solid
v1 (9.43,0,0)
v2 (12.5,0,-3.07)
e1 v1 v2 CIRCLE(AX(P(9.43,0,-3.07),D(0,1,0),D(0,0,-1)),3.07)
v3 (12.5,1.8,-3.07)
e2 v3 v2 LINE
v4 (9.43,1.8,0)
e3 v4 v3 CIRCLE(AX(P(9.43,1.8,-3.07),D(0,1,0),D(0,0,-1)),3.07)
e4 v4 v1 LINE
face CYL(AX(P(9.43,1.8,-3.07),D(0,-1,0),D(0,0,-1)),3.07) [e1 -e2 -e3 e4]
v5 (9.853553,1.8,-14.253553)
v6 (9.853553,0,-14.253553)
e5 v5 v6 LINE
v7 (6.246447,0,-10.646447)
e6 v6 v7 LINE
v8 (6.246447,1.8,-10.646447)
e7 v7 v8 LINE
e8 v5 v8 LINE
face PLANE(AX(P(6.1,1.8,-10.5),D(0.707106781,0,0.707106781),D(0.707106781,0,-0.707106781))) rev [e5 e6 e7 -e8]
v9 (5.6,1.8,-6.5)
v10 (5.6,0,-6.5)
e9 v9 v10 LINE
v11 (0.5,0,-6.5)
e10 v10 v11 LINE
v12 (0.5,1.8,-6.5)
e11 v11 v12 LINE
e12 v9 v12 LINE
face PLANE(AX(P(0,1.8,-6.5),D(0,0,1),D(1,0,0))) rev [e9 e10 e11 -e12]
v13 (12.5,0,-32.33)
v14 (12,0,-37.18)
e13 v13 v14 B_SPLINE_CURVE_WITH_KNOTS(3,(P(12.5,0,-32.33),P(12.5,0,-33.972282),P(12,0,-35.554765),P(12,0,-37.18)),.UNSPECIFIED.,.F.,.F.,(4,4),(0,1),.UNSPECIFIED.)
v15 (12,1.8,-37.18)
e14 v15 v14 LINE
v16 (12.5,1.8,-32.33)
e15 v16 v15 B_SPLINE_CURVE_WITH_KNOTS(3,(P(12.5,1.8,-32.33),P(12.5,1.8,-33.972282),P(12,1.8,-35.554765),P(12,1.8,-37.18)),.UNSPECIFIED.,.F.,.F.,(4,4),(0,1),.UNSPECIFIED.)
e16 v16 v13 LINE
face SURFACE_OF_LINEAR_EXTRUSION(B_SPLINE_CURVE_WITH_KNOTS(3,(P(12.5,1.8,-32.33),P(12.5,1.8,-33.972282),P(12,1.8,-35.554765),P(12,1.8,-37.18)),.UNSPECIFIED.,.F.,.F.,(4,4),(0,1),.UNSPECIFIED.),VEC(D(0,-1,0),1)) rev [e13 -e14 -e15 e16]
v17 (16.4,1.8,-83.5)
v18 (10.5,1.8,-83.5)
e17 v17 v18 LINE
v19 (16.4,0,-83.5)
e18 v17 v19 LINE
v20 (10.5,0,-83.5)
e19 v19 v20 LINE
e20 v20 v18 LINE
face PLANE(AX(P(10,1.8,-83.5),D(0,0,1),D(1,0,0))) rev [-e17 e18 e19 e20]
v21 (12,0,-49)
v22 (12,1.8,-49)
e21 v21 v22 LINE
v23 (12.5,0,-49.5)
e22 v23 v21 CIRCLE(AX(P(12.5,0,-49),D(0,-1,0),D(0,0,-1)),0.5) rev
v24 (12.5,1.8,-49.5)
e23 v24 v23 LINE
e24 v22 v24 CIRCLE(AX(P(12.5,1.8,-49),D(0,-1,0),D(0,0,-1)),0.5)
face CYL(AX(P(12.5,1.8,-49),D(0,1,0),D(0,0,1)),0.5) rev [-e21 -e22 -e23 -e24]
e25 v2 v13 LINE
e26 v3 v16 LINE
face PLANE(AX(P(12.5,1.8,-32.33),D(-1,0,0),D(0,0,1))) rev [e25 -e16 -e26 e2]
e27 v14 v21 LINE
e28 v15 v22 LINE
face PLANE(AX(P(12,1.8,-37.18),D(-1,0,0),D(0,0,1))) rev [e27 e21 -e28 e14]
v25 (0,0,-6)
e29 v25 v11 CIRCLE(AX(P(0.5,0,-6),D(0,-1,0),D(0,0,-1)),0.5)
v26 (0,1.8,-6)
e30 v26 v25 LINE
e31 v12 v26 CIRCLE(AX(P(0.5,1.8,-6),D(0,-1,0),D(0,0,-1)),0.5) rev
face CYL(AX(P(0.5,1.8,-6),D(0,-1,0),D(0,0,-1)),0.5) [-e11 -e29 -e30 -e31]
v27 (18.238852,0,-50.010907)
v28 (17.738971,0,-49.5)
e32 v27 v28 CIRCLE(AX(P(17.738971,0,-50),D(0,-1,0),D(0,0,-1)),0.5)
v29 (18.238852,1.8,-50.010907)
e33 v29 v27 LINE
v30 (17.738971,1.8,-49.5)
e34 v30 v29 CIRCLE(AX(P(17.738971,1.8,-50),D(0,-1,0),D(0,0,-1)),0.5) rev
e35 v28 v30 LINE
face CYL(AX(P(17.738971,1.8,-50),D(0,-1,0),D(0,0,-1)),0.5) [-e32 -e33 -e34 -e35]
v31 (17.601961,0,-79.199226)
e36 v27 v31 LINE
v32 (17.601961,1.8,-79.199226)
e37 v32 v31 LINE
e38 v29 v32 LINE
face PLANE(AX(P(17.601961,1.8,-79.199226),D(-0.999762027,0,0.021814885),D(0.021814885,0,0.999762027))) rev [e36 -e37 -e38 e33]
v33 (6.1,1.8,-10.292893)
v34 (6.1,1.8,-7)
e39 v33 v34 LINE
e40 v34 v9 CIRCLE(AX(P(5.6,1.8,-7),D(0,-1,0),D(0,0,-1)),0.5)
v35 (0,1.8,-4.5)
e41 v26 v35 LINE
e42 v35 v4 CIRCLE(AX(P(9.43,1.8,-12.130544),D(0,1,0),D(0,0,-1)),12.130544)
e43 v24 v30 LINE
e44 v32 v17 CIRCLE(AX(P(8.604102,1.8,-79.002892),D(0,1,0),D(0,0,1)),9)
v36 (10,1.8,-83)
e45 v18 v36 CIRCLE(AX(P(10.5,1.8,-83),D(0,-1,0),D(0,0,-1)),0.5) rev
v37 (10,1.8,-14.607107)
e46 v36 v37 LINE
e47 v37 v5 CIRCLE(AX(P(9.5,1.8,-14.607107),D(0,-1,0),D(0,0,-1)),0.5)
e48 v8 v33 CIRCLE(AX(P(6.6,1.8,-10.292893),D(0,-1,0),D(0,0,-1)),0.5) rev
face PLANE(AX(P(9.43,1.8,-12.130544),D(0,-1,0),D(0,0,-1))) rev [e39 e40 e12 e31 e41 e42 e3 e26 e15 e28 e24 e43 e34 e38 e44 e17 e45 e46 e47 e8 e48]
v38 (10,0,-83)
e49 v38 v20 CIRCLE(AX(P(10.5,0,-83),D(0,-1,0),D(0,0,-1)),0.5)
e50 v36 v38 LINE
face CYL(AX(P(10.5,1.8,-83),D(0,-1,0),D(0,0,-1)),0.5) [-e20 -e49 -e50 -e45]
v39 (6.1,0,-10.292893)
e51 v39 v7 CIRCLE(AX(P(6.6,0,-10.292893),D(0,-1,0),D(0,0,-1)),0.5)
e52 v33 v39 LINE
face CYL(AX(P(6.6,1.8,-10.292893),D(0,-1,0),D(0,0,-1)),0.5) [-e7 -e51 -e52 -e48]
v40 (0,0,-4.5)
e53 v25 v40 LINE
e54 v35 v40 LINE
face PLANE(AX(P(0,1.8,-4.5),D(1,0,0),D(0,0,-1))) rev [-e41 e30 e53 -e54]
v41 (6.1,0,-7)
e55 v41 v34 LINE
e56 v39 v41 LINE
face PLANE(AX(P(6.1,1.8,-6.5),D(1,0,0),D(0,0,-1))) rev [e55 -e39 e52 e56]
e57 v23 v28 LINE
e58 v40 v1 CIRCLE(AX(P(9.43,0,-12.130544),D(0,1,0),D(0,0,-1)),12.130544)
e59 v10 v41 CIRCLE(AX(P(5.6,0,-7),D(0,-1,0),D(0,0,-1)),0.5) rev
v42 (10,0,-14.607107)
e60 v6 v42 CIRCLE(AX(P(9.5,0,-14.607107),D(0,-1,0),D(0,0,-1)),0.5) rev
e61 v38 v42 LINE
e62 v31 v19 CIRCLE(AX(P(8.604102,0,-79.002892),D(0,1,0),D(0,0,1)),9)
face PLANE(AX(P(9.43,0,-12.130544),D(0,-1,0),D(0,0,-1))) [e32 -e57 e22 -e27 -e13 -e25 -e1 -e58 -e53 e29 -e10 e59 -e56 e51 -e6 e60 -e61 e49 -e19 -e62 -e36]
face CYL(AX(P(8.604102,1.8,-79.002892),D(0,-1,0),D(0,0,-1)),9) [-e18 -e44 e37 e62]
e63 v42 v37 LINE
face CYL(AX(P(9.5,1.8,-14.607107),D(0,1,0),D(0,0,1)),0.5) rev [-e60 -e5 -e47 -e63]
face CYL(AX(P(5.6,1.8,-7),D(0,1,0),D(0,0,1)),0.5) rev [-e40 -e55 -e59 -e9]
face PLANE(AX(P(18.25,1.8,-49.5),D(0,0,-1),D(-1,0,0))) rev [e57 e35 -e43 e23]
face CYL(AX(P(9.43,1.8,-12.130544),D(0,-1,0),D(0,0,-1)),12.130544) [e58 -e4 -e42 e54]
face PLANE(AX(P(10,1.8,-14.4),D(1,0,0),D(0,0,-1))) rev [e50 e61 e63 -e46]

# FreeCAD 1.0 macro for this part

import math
import FreeCAD as App
import Part
import Sketcher
from FreeCAD import Vector
Q = App.Units.Quantity


def edges_at(feature, points):
    """Names of the edges that pass closest to the given points."""
    edges = feature.Shape.Edges
    near = lambda p: min(range(len(edges)), key=lambda i: edges[i].distToShape(Part.Vertex(*p))[0])
    return sorted({f"Edge{near(p) + 1}" for p in points})

doc = App.newDocument("Part")
params = doc.addObject("Spreadsheet::Sheet", "Params")
for row, (alias, value) in enumerate([
    ("sketch1_radius", "9 mm"),
    ("sketch1_height", "2 mm"),
    ("sketch1_height2", "4 mm"),
    ("sketch1_radius2", "3.07 mm"),
    ("sketch1_width", "6.4 mm"),
    ("pad1_length", "1.8 mm"),
    ("fillet_radius", "0.5 mm"),
], start=1):
    params.set(f"A{row}", alias)
    params.set(f"B{row}", "=" + value)
    params.setAlias(f"B{row}", alias)

body = doc.addObject("PartDesign::Body", "Body")

# Sketch on XZ plane
sketch1 = body.newObject("Sketcher::SketchObject", "Sketch")
sketch1.AttachmentSupport = (doc.getObject("XZ_Plane"), [""])
sketch1.MapMode = "FlatFace"
sketch1.addGeometry([
    Part.LineSegment(Vector(0, -6.5, 0), Vector(0, -4.5, 0)),  # 0
    Part.ArcOfCircle(Part.Circle(Vector(9.43, -12.130544, 0), Vector(0, 0, 1), 12.130544), math.radians(90), math.radians(141.020993)),  # 1
    Part.ArcOfCircle(Part.Circle(Vector(9.43, -3.07, 0), Vector(0, 0, 1), 3.07), math.radians(0), math.radians(90)),  # 2
    Part.LineSegment(Vector(12.5, -3.07, 0), Vector(12.5, -32.33, 0)),  # 3
    Part.BSplineCurve([Vector(12.5, -32.33, 0), Vector(12.5, -33.972282, 0), Vector(12, -35.554765, 0), Vector(12, -37.18, 0)], [4, 4], [0, 1], False, 3, [1, 1, 1, 1], False),  # 4
    Part.LineSegment(Vector(12, -37.18, 0), Vector(12, -49.5, 0)),  # 5
    Part.LineSegment(Vector(12, -49.5, 0), Vector(18.25, -49.5, 0)),  # 6
    Part.LineSegment(Vector(18.25, -49.5, 0), Vector(17.601961, -79.199226, 0)),  # 7
    Part.ArcOfCircle(Part.Circle(Vector(8.604102, -79.002892, 0), Vector(0, 0, 1), 9), math.radians(-29.978742), math.radians(-1.25)),  # 8
    Part.LineSegment(Vector(16.4, -83.5, 0), Vector(10, -83.5, 0)),  # 9
    Part.LineSegment(Vector(10, -83.5, 0), Vector(10, -14.4, 0)),  # 10
    Part.LineSegment(Vector(10, -14.4, 0), Vector(6.1, -10.5, 0)),  # 11
    Part.LineSegment(Vector(6.1, -10.5, 0), Vector(6.1, -6.5, 0)),  # 12
    Part.LineSegment(Vector(6.1, -6.5, 0), Vector(0, -6.5, 0)),  # 13
], False)
sketch1.addConstraint([
    Sketcher.Constraint("Block", 4),
    Sketcher.Constraint("Coincident", 0, 2, 1, 2),
    Sketcher.Constraint("Coincident", 1, 1, 2, 2),
    Sketcher.Constraint("Coincident", 2, 1, 3, 1),
    Sketcher.Constraint("Coincident", 3, 2, 4, 1),
    Sketcher.Constraint("Coincident", 4, 2, 5, 1),
    Sketcher.Constraint("Coincident", 5, 2, 6, 1),
    Sketcher.Constraint("Coincident", 6, 2, 7, 1),
    Sketcher.Constraint("Coincident", 7, 2, 8, 2),
    Sketcher.Constraint("Coincident", 8, 1, 9, 1),
    Sketcher.Constraint("Coincident", 9, 2, 10, 1),
    Sketcher.Constraint("Coincident", 10, 2, 11, 1),
    Sketcher.Constraint("Coincident", 11, 2, 12, 1),
    Sketcher.Constraint("Coincident", 12, 2, 13, 1),
    Sketcher.Constraint("Coincident", 13, 2, 0, 1),
    Sketcher.Constraint("Vertical", 0),
    Sketcher.Constraint("Vertical", 3),
    Sketcher.Constraint("Vertical", 5),
    Sketcher.Constraint("Horizontal", 6),
    Sketcher.Constraint("Horizontal", 9),
    Sketcher.Constraint("Vertical", 10),
    Sketcher.Constraint("Vertical", 12),
    Sketcher.Constraint("Horizontal", 13),
    Sketcher.Constraint("PointOnObject", 0, 2, -2),
    Sketcher.Constraint("PointOnObject", 1, 1, -1),
    Sketcher.Constraint("Radius", 8, Q("9 mm")),
    Sketcher.Constraint("DistanceY", 0, 1, 0, 2, Q("2 mm")),
    Sketcher.Constraint("DistanceY", 12, 1, 12, 2, Q("4 mm")),
    Sketcher.Constraint("Radius", 2, Q("3.07 mm")),
    Sketcher.Constraint("DistanceX", 9, 2, 9, 1, Q("6.4 mm")),
    Sketcher.Constraint("DistanceX", 13, 2, 13, 1, Q("6.1 mm")),
    Sketcher.Constraint("DistanceY", 10, 1, 10, 2, Q("69.1 mm")),
    Sketcher.Constraint("DistanceX", -1, 1, 9, 2, Q("10 mm")),
    Sketcher.Constraint("DistanceY", 8, 1, 6, 2, Q("34 mm")),
    Sketcher.Constraint("DistanceX", 6, 1, 6, 2, Q("6.25 mm")),
    Sketcher.Constraint("DistanceY", 3, 2, 3, 1, Q("29.26 mm")),
    Sketcher.Constraint("DistanceY", 5, 2, 5, 1, Q("12.32 mm")),
    Sketcher.Constraint("DistanceY", 0, 2, -1, 1, Q("4.5 mm")),
    Sketcher.Constraint("DistanceX", -1, 1, 1, 3, Q("9.43 mm")),
    Sketcher.Constraint("DistanceX", -1, 1, 1, 1, Q("9.43 mm")),
    Sketcher.Constraint("DistanceX", -1, 1, 7, 2, Q("17.601961 mm")),
    Sketcher.Constraint("DistanceX", 8, 3, 7, 2, Q("8.997858 mm")),
])
sketch1.setExpression("Constraints[25]", "Params.sketch1_radius")
sketch1.setExpression("Constraints[26]", "Params.sketch1_height")
sketch1.setExpression("Constraints[27]", "Params.sketch1_height2")
sketch1.setExpression("Constraints[28]", "Params.sketch1_radius2")
sketch1.setExpression("Constraints[29]", "Params.sketch1_width")
pad1 = body.newObject("PartDesign::Pad", "Pad")
pad1.Profile = sketch1
pad1.setExpression("Length", "Params.pad1_length")
pad1.Reversed = True
doc.recompute()

fillet = body.newObject("PartDesign::Fillet", "Fillet")
fillet.Base = (pad1, edges_at(pad1, [
    (0, 0.9, -6.5),
    (6.1, 0.9, -6.5),
    (6.1, 0.9, -10.5),
    (10, 0.9, -14.4),
    (10, 0.9, -83.5),
    (18.25, 0.9, -49.5),
    (12, 0.9, -49.5),
]))
fillet.setExpression("Radius", "Params.fillet_radius")

doc.recompute()
